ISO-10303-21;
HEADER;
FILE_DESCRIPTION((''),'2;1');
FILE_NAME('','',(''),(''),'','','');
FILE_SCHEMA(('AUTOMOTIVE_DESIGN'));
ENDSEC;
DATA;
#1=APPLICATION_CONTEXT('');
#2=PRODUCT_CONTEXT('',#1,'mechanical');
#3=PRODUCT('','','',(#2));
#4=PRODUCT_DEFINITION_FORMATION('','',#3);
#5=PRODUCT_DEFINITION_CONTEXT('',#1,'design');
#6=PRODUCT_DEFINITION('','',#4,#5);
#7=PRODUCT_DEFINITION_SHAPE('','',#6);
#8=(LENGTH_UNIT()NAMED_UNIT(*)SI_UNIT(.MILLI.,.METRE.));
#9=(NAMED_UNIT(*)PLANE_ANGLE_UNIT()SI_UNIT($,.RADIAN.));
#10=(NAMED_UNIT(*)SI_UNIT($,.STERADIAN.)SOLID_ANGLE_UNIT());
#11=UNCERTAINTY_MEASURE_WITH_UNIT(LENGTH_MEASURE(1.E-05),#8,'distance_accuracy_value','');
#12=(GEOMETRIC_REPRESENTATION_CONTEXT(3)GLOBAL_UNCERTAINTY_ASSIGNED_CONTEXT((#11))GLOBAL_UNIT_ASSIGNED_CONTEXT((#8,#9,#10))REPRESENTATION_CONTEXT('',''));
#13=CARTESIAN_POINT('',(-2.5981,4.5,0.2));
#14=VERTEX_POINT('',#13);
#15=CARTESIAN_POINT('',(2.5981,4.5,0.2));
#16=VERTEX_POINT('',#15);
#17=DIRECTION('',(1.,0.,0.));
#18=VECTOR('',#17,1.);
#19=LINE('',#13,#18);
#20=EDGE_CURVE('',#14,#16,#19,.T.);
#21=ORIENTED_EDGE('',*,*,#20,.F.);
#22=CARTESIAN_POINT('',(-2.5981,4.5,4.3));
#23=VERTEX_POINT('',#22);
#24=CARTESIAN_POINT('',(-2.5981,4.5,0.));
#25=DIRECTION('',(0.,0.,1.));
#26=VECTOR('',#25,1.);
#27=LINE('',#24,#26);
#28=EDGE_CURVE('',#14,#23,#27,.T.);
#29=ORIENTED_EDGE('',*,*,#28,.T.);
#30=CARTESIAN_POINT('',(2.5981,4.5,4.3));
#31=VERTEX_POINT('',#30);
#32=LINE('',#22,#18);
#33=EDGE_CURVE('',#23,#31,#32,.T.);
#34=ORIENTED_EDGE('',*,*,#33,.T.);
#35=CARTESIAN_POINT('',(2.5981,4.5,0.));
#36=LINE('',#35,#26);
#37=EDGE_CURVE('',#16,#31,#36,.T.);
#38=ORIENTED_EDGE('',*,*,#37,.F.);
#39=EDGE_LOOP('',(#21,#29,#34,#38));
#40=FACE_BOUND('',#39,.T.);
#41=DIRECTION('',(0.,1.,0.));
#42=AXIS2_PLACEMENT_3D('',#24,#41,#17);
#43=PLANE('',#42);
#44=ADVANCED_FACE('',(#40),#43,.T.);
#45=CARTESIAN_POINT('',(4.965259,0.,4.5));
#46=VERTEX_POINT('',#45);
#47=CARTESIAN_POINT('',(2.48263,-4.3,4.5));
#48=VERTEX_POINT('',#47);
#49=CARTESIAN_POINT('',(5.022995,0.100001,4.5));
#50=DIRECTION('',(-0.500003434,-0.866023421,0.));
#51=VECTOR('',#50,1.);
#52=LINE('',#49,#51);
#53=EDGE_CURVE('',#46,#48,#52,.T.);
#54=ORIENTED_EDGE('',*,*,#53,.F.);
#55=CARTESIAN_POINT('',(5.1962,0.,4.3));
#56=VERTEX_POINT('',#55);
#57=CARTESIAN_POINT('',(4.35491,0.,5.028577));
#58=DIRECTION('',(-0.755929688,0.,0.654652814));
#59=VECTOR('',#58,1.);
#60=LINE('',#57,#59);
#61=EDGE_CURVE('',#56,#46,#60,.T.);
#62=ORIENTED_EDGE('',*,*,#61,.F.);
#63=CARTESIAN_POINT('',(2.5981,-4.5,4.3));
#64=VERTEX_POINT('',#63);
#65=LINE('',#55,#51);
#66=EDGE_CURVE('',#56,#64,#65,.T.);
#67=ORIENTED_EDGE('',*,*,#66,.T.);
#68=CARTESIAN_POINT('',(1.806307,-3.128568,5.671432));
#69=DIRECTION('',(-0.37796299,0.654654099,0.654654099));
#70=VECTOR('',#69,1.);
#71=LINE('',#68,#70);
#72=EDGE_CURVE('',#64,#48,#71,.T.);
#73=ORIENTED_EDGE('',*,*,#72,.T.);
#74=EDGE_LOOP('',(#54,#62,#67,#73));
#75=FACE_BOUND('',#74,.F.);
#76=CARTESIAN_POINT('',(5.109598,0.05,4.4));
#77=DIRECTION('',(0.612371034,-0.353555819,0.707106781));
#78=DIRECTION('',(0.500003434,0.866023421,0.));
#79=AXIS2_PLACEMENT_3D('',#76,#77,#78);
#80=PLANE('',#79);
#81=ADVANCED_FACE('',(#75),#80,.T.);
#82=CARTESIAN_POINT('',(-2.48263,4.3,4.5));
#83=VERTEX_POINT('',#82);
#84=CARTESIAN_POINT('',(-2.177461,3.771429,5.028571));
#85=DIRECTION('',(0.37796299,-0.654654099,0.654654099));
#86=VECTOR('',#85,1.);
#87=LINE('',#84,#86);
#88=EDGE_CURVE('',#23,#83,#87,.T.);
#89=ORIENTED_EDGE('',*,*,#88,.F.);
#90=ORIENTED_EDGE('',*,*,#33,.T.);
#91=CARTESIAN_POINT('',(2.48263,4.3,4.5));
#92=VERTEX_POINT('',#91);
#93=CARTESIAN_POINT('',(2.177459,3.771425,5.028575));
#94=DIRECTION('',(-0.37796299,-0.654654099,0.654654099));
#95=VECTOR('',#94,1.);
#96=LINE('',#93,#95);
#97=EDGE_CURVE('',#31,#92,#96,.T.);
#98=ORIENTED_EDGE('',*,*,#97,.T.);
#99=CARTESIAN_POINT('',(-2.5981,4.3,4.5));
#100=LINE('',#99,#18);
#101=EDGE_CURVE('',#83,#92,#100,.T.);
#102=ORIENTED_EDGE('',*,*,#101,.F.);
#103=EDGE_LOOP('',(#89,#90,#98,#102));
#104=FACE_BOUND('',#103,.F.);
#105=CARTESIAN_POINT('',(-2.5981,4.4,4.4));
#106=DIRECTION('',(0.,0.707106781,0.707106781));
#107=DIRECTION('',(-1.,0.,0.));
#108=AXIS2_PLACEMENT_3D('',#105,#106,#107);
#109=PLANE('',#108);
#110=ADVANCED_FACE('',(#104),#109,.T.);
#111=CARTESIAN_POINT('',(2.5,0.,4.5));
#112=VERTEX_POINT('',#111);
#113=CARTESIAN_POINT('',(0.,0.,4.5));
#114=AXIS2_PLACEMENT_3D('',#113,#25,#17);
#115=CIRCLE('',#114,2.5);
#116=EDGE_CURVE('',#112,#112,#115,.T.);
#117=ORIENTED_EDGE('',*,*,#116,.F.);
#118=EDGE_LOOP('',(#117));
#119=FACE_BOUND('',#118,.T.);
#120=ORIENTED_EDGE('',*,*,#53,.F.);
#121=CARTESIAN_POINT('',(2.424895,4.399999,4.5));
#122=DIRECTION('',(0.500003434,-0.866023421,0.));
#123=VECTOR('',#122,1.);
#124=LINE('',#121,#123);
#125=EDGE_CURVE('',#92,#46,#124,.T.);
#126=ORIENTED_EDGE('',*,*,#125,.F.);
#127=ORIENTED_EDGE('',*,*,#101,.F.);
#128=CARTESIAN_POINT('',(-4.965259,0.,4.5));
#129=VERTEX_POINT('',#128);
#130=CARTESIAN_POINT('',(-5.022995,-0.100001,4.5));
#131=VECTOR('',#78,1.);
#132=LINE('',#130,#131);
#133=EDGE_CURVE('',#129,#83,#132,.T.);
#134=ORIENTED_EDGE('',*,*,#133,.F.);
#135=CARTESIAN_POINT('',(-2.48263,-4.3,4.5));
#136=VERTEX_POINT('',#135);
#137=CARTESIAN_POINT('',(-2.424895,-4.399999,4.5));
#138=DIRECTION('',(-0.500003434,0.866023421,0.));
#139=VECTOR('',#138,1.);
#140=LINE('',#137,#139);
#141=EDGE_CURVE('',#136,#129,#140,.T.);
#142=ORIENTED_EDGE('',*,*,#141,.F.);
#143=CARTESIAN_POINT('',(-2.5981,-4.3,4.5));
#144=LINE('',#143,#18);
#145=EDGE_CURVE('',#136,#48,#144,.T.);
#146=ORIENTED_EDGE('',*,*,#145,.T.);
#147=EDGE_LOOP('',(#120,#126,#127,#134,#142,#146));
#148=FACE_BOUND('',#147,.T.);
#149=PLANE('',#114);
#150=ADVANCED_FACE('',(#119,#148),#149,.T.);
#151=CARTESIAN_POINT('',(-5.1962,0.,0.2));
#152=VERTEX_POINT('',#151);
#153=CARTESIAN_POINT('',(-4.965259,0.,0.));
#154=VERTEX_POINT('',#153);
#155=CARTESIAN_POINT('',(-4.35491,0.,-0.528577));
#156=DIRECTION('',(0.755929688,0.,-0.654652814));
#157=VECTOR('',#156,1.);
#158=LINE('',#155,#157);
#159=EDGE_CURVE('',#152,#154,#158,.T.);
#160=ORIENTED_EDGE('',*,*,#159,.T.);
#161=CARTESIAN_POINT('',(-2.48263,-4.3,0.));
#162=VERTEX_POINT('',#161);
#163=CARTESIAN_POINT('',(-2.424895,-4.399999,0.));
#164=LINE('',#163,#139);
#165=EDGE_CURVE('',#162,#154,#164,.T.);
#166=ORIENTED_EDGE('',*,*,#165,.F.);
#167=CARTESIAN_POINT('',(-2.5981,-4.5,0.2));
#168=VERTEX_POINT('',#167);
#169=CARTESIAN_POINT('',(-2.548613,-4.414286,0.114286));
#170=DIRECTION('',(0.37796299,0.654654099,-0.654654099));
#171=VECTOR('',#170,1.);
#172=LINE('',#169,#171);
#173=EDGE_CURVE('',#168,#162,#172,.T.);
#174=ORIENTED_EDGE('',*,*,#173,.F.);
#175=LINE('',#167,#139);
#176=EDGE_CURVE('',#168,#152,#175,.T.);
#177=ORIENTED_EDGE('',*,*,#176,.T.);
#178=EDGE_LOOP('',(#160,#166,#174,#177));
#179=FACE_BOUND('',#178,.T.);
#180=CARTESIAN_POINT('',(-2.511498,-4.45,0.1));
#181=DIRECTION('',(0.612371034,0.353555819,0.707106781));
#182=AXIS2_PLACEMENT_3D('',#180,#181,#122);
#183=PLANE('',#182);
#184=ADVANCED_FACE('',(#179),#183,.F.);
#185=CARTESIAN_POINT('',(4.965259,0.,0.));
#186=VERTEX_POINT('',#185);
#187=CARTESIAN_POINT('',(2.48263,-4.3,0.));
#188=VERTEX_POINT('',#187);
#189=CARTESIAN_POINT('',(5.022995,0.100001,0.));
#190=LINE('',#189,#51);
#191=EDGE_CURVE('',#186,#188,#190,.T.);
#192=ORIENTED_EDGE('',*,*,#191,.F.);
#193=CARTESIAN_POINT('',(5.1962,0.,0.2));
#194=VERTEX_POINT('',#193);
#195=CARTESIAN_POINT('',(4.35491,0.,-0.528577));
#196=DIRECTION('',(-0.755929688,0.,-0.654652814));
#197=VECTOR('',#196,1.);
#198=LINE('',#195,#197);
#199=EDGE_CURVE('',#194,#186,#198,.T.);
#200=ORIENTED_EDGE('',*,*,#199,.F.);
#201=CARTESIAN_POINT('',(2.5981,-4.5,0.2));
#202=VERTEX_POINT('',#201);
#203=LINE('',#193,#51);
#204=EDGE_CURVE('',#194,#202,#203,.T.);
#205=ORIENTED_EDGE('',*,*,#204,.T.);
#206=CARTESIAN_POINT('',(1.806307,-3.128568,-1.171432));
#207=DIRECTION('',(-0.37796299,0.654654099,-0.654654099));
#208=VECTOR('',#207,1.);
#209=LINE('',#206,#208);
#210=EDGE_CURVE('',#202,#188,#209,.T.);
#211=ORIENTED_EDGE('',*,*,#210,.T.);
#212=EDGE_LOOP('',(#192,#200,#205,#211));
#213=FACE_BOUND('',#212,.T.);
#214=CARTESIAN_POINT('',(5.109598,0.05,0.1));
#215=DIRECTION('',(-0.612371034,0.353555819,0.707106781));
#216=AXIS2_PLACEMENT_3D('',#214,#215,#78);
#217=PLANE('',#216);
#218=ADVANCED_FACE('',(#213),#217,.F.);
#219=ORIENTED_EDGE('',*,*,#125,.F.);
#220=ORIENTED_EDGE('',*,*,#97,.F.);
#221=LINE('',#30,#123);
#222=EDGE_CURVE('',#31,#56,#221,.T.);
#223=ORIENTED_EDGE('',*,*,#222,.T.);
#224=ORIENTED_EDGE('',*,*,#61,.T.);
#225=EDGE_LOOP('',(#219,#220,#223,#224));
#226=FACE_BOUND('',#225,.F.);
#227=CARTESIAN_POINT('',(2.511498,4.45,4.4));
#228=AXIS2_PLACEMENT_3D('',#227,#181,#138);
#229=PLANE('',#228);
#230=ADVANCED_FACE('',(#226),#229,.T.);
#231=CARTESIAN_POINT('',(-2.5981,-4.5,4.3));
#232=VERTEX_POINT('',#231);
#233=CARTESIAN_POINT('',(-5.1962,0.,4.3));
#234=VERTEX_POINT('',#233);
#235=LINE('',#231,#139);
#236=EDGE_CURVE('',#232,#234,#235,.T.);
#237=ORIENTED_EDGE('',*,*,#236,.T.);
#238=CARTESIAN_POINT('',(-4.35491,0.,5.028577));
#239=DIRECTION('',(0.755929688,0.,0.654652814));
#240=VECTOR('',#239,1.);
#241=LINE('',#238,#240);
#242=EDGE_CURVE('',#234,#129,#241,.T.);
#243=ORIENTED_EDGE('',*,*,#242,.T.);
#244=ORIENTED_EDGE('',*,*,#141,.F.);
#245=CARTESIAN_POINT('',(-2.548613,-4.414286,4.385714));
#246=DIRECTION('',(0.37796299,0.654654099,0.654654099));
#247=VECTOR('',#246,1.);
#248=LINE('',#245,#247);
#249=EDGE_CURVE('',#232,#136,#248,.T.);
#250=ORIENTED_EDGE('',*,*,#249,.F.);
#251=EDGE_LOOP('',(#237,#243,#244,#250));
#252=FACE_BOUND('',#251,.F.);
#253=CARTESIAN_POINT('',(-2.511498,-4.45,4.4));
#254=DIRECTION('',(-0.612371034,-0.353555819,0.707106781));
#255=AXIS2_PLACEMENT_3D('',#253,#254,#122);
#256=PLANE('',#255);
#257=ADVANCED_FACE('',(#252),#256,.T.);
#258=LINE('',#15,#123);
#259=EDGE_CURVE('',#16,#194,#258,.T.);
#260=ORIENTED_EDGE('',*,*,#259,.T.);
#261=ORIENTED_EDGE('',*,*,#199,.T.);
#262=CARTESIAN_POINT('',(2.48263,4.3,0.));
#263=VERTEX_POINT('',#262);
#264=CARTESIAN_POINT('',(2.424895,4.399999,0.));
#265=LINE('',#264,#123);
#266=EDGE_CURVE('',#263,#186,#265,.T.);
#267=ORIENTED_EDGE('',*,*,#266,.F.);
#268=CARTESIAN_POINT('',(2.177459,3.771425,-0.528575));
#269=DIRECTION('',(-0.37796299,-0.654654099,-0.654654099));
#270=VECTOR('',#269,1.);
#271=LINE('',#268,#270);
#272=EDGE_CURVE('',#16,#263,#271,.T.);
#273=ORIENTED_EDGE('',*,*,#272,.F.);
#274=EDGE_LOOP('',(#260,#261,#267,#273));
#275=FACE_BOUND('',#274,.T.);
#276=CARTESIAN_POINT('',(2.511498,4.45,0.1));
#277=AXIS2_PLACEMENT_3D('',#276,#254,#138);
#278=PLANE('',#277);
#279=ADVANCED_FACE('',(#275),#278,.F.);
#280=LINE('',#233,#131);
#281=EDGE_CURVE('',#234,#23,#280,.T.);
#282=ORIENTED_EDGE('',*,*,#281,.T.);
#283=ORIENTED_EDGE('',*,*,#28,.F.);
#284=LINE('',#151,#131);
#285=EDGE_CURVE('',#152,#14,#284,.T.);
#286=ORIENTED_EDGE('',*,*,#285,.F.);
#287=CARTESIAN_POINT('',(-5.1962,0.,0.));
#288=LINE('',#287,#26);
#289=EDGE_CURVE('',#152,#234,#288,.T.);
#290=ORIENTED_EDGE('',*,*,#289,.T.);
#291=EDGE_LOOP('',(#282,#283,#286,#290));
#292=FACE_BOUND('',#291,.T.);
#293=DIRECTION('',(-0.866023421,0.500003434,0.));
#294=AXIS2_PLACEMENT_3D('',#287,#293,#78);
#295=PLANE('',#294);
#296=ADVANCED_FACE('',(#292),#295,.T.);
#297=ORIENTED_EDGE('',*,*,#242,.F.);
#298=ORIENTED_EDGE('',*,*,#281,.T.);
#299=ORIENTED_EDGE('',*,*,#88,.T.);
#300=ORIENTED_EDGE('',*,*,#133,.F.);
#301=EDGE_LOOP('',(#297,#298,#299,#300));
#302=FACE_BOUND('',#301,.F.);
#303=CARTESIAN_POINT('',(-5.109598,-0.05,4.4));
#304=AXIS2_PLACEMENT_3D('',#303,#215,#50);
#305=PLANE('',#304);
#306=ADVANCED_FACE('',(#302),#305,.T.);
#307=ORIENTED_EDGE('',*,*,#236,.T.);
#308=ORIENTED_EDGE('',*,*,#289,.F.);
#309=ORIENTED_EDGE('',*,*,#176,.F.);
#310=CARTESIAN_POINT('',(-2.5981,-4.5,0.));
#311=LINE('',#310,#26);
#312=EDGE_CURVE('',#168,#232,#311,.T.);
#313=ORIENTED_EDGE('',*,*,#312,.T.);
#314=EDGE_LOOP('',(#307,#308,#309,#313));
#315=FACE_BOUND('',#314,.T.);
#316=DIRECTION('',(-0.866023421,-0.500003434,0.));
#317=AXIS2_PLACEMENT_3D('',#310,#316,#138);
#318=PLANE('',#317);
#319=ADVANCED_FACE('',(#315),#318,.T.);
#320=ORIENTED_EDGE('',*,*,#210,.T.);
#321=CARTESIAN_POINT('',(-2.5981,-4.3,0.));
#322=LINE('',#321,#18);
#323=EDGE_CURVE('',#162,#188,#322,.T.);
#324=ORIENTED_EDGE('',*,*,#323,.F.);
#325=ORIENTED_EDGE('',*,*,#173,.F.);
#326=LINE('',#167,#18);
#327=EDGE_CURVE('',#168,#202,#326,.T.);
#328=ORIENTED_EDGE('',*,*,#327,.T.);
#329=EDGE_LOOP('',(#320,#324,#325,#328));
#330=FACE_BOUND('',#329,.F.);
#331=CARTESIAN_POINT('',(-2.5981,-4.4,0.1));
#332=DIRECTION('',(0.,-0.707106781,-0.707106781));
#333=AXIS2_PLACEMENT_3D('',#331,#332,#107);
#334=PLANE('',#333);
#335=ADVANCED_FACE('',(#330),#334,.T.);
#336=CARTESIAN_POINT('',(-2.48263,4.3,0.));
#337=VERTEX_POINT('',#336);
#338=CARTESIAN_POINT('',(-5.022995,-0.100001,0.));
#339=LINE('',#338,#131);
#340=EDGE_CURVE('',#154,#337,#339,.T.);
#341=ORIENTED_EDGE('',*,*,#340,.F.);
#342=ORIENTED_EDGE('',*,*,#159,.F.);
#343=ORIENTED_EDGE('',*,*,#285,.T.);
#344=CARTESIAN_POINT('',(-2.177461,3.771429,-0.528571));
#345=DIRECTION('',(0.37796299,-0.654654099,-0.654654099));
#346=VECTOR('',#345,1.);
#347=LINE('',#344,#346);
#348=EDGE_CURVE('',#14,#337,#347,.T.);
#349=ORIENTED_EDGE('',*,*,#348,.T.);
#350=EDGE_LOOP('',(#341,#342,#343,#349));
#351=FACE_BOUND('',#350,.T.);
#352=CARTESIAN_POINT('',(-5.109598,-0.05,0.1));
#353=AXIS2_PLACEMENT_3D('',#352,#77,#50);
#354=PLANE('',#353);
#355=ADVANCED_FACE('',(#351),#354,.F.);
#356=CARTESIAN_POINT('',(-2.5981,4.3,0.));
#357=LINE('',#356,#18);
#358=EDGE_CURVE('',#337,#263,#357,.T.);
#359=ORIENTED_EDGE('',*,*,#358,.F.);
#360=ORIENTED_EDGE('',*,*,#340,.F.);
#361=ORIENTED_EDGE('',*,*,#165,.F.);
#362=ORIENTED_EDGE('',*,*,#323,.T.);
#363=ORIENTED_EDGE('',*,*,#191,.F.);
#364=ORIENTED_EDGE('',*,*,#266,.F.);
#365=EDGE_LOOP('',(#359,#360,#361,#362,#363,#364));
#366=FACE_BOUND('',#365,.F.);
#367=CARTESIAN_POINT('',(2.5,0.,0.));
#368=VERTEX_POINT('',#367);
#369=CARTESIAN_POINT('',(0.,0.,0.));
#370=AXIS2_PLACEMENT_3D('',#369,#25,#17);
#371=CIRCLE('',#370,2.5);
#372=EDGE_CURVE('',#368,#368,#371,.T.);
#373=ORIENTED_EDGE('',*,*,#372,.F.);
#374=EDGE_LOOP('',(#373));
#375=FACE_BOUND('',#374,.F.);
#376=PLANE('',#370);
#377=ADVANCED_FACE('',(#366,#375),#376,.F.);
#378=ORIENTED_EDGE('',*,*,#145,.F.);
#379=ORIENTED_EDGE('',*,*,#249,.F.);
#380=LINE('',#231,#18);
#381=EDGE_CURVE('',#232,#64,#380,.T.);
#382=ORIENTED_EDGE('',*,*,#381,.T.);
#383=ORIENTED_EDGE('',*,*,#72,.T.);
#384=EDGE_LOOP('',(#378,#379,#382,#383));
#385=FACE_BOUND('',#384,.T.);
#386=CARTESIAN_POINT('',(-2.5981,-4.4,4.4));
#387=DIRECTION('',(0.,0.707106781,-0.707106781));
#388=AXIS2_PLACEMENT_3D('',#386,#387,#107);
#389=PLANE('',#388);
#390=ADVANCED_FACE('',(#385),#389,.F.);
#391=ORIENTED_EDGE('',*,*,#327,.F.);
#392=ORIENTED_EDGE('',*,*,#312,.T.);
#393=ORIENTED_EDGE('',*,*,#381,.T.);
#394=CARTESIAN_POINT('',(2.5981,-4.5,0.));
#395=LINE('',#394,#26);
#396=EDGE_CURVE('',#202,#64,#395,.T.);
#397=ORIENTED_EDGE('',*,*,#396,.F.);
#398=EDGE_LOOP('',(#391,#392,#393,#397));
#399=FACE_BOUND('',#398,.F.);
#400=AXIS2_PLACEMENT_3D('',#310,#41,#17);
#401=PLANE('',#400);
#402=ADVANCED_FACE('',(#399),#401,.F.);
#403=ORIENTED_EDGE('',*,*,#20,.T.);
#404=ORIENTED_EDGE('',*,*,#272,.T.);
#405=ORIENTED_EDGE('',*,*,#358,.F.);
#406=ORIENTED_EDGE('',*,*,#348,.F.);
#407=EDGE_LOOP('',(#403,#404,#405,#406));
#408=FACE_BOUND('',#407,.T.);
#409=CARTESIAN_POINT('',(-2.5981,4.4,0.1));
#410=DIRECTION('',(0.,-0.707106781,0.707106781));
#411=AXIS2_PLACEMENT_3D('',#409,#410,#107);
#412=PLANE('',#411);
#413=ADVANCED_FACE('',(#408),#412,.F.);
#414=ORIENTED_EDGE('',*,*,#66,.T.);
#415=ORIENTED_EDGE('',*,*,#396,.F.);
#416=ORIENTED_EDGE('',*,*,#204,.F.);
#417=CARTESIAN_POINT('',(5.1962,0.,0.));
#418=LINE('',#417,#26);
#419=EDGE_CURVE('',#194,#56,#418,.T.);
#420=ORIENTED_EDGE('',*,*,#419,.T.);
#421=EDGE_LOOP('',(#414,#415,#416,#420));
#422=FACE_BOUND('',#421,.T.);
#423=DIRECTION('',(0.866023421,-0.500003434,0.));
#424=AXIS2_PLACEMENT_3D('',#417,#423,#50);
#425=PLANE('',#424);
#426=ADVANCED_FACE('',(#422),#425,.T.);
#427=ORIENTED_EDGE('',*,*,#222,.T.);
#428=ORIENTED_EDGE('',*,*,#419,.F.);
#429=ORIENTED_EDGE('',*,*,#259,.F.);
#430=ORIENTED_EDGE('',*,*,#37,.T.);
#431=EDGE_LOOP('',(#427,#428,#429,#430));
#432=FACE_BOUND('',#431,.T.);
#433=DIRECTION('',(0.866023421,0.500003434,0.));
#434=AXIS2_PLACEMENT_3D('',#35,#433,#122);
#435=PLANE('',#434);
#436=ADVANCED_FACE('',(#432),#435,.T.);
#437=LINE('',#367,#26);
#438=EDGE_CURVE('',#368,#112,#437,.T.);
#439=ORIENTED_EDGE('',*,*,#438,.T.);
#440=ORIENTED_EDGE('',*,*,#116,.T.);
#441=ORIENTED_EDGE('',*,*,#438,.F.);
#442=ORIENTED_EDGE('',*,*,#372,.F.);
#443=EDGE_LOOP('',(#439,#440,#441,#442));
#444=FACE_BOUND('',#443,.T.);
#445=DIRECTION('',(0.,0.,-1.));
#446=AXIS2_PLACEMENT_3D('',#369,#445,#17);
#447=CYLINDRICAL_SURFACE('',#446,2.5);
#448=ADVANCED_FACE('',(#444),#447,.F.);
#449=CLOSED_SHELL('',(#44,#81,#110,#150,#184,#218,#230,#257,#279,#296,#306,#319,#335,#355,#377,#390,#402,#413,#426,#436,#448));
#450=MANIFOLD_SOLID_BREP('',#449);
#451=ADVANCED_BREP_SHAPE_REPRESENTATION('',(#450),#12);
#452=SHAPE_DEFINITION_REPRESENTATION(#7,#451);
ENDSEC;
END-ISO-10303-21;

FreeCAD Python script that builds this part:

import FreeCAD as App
import Part
import Sketcher

V = App.Vector
Q = App.Units.Quantity


def edges_at(feature, points):
    """Names of the edges that pass closest to the given points."""
    edges = feature.Shape.Edges
    near = lambda p: min(range(len(edges)), key=lambda i: edges[i].distToShape(Part.Vertex(*p))[0])
    return sorted({f"Edge{near(p) + 1}" for p in points})


def add_polygon(sketch, points):
    """Adds a closed chain of lines whose ends are joined by coincident constraints."""
    first, n = sketch.GeometryCount, len(points)
    for a, b in zip(points, points[1:] + points[:1]):
        sketch.addGeometry(Part.LineSegment(App.Vector(*a, 0), App.Vector(*b, 0)), False)
    for i in range(n):
        sketch.addConstraint(Sketcher.Constraint("Coincident", first + i, 2, first + (i + 1) % n, 1))

doc = App.newDocument("Part")
body = doc.addObject("PartDesign::Body", "Body")

# Sketch on XY plane
sketch1 = body.newObject("Sketcher::SketchObject", "Sketch")
sketch1.AttachmentSupport = (doc.getObject("XY_Plane"), [""])
sketch1.MapMode = "FlatFace"
add_polygon(sketch1, [(5.2, 0), (2.6, 4.5), (-2.6, 4.5), (-5.2, 0), (-2.6, -4.5), (2.6, -4.5)])  # lines 0-5
sketch1.addGeometry(Part.Circle(V(0, 0, 0), V(0, 0, 1), 2.5), False)  # 6
sketch1.addConstraint([
    Sketcher.Constraint("Horizontal", 1),
    Sketcher.Constraint("Horizontal", 4),
    Sketcher.Constraint("Coincident", 6, 3, -1, 1),
    Sketcher.Constraint("Symmetric", 0, 2, 3, 2, -1, 1),
    Sketcher.Constraint("Symmetric", 2, 2, 5, 2, -1, 1),
    Sketcher.Constraint("PointOnObject", 2, 2, -1),
    Sketcher.Constraint("Parallel", 2, 5),
    Sketcher.Constraint("Vertical", 1, 2, 3, 2),
    Sketcher.Constraint("Diameter", 6, Q("5 mm")),
    Sketcher.Constraint("Angle", 0, Q("120.0002 deg")),
    Sketcher.Constraint("DistanceY", 3, 2, 1, 2, Q("9 mm")),
    Sketcher.Constraint("DistanceX", 1, 2, 1, 1, Q("5.1962 mm")),
])
pad1 = body.newObject("PartDesign::Pad", "Pad")
pad1.Profile = sketch1
pad1.Length = 4.5
doc.recompute()

chamfer = body.newObject("PartDesign::Chamfer", "Chamfer")
chamfer.Base = (pad1, edges_at(pad1, [
    (0, -4.5, 4.5),
    (-3.897, -2.25, 4.5),
    (-3.897, 2.25, 4.5),
    (0, 4.5, 4.5),
    (3.897, 2.25, 4.5),
    (3.897, -2.25, 4.5),
    (0, -4.5, 0),
    (-3.897, -2.25, 0),
    (-3.897, 2.25, 0),
    (0, 4.5, 0),
    (3.897, 2.25, 0),
    (3.897, -2.25, 0),
]))
chamfer.Size = 0.2

doc.recompute()
